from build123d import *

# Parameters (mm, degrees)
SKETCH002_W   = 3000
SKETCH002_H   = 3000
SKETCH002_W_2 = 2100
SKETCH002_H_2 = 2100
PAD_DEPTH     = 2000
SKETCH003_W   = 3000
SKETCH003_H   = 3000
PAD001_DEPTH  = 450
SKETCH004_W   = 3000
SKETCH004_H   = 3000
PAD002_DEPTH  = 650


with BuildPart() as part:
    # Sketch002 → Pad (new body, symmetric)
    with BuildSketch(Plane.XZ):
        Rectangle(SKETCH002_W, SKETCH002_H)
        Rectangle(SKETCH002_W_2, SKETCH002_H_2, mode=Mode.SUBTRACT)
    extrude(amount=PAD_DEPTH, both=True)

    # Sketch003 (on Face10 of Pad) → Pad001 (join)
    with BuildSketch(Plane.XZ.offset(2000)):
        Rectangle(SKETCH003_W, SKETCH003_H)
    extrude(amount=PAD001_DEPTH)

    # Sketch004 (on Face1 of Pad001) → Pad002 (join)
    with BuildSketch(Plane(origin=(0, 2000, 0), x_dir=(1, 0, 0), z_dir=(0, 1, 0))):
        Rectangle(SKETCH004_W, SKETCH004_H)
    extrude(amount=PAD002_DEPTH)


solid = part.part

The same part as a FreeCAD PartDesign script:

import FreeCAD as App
import Part
import Sketcher
Q = App.Units.Quantity

doc = App.newDocument("Part")
params = doc.addObject("Spreadsheet::Sheet", "Params")
for row, (alias, value) in enumerate([
    ("sketch1_width", "3000 mm"),
    ("sketch1_width2", "2100 mm"),
    ("pad1_length", "4000 mm"),
    ("sketch2_width", "3000 mm"),
    ("pad2_length", "450 mm"),
    ("sketch3_width", "3000 mm"),
    ("pad3_length", "650 mm"),
], start=1):
    params.set(f"A{row}", alias)
    params.set(f"B{row}", "=" + value)
    params.setAlias(f"B{row}", alias)

body = doc.addObject("PartDesign::Body", "Body")

# Sketch on XZ plane
sketch1 = body.newObject("Sketcher::SketchObject", "Sketch")
sketch1.AttachmentSupport = (doc.getObject("XZ_Plane"), [""])
sketch1.MapMode = "FlatFace"
sketch1.addGeometry([
    Part.LineSegment(App.Vector(-1500, 1500, 0), App.Vector(-1500, -1500, 0)),  # 0
    Part.LineSegment(App.Vector(-1500, -1500, 0), App.Vector(1500, -1500, 0)),  # 1
    Part.LineSegment(App.Vector(1500, -1500, 0), App.Vector(1500, 1500, 0)),  # 2
    Part.LineSegment(App.Vector(1500, 1500, 0), App.Vector(-1500, 1500, 0)),  # 3
    Part.LineSegment(App.Vector(1050, -1050, 0), App.Vector(-1050, -1050, 0)),  # 4
    Part.LineSegment(App.Vector(-1050, -1050, 0), App.Vector(-1050, 1050, 0)),  # 5
    Part.LineSegment(App.Vector(-1050, 1050, 0), App.Vector(1050, 1050, 0)),  # 6
    Part.LineSegment(App.Vector(1050, 1050, 0), App.Vector(1050, -1050, 0)),  # 7
], False)
sketch1.addConstraint([
    Sketcher.Constraint("Coincident", 0, 2, 1, 1),
    Sketcher.Constraint("Coincident", 1, 2, 2, 1),
    Sketcher.Constraint("Coincident", 2, 2, 3, 1),
    Sketcher.Constraint("Coincident", 3, 2, 0, 1),
    Sketcher.Constraint("Coincident", 4, 2, 5, 1),
    Sketcher.Constraint("Coincident", 5, 2, 6, 1),
    Sketcher.Constraint("Coincident", 6, 2, 7, 1),
    Sketcher.Constraint("Coincident", 7, 2, 4, 1),
    Sketcher.Constraint("Vertical", 0),
    Sketcher.Constraint("Horizontal", 1),
    Sketcher.Constraint("Vertical", 2),
    Sketcher.Constraint("Horizontal", 3),
    Sketcher.Constraint("Horizontal", 4),
    Sketcher.Constraint("Vertical", 5),
    Sketcher.Constraint("Horizontal", 6),
    Sketcher.Constraint("Vertical", 7),
    Sketcher.Constraint("Symmetric", 0, 2, 2, 2, -1, 1),
    Sketcher.Constraint("Symmetric", 4, 2, 6, 2, -1, 1),
    Sketcher.Constraint("Equal", 3, 0),
    Sketcher.Constraint("Equal", 6, 5),
    Sketcher.Constraint("DistanceX", 1, 1, 1, 2, Q("3000 mm")),
    Sketcher.Constraint("DistanceX", 4, 2, 4, 1, Q("2100 mm")),
])
sketch1.setExpression("Constraints[20]", "Params.sketch1_width")
sketch1.setExpression("Constraints[21]", "Params.sketch1_width2")
pad1 = body.newObject("PartDesign::Pad", "Pad")
pad1.Profile = sketch1
pad1.setExpression("Length", "Params.pad1_length")
pad1.Midplane = True

# Sketch on XZ plane
sketch2 = body.newObject("Sketcher::SketchObject", "Sketch001")
sketch2.AttachmentSupport = (doc.getObject("XZ_Plane"), [""])
sketch2.MapMode = "FlatFace"
sketch2.AttachmentOffset = App.Placement(App.Vector(0, 0, 2000), App.Rotation())
sketch2.addGeometry([
    Part.LineSegment(App.Vector(-1500, 1500, 0), App.Vector(-1500, -1500, 0)),
    Part.LineSegment(App.Vector(-1500, -1500, 0), App.Vector(1500, -1500, 0)),
    Part.LineSegment(App.Vector(1500, -1500, 0), App.Vector(1500, 1500, 0)),
    Part.LineSegment(App.Vector(1500, 1500, 0), App.Vector(-1500, 1500, 0)),
], False)
sketch2.addConstraint([
    Sketcher.Constraint("Coincident", 0, 2, 1, 1),
    Sketcher.Constraint("Coincident", 1, 2, 2, 1),
    Sketcher.Constraint("Coincident", 2, 2, 3, 1),
    Sketcher.Constraint("Coincident", 3, 2, 0, 1),
    Sketcher.Constraint("Vertical", 0),
    Sketcher.Constraint("Horizontal", 1),
    Sketcher.Constraint("Vertical", 2),
    Sketcher.Constraint("Horizontal", 3),
    Sketcher.Constraint("Symmetric", 0, 2, 2, 2, -1, 1),
    Sketcher.Constraint("Equal", 3, 0),
    Sketcher.Constraint("DistanceX", 1, 1, 1, 2, Q("3000 mm")),
])
sketch2.setExpression("Constraints[10]", "Params.sketch2_width")
pad2 = body.newObject("PartDesign::Pad", "Pad001")
pad2.Profile = sketch2
pad2.setExpression("Length", "Params.pad2_length")

# Sketch on XZ plane
sketch3 = body.newObject("Sketcher::SketchObject", "Sketch002")
sketch3.AttachmentSupport = (doc.getObject("XZ_Plane"), [""])
sketch3.MapMode = "FlatFace"
sketch3.AttachmentOffset = App.Placement(App.Vector(0, 0, -2000), App.Rotation())
sketch3.addGeometry([
    Part.LineSegment(App.Vector(-1500, -1500, 0), App.Vector(-1500, 1500, 0)),
    Part.LineSegment(App.Vector(-1500, 1500, 0), App.Vector(1500, 1500, 0)),
    Part.LineSegment(App.Vector(1500, 1500, 0), App.Vector(1500, -1500, 0)),
    Part.LineSegment(App.Vector(1500, -1500, 0), App.Vector(-1500, -1500, 0)),
], False)
sketch3.addConstraint([
    Sketcher.Constraint("Coincident", 0, 2, 1, 1),
    Sketcher.Constraint("Coincident", 1, 2, 2, 1),
    Sketcher.Constraint("Coincident", 2, 2, 3, 1),
    Sketcher.Constraint("Coincident", 3, 2, 0, 1),
    Sketcher.Constraint("Vertical", 0),
    Sketcher.Constraint("Horizontal", 1),
    Sketcher.Constraint("Vertical", 2),
    Sketcher.Constraint("Horizontal", 3),
    Sketcher.Constraint("Symmetric", 0, 2, 2, 2, -1, 1),
    Sketcher.Constraint("Equal", 3, 0),
    Sketcher.Constraint("DistanceX", 1, 1, 1, 2, Q("3000 mm")),
])
sketch3.setExpression("Constraints[10]", "Params.sketch3_width")
pad3 = body.newObject("PartDesign::Pad", "Pad002")
pad3.Profile = sketch3
pad3.setExpression("Length", "Params.pad3_length")
pad3.Reversed = True

doc.recompute()
